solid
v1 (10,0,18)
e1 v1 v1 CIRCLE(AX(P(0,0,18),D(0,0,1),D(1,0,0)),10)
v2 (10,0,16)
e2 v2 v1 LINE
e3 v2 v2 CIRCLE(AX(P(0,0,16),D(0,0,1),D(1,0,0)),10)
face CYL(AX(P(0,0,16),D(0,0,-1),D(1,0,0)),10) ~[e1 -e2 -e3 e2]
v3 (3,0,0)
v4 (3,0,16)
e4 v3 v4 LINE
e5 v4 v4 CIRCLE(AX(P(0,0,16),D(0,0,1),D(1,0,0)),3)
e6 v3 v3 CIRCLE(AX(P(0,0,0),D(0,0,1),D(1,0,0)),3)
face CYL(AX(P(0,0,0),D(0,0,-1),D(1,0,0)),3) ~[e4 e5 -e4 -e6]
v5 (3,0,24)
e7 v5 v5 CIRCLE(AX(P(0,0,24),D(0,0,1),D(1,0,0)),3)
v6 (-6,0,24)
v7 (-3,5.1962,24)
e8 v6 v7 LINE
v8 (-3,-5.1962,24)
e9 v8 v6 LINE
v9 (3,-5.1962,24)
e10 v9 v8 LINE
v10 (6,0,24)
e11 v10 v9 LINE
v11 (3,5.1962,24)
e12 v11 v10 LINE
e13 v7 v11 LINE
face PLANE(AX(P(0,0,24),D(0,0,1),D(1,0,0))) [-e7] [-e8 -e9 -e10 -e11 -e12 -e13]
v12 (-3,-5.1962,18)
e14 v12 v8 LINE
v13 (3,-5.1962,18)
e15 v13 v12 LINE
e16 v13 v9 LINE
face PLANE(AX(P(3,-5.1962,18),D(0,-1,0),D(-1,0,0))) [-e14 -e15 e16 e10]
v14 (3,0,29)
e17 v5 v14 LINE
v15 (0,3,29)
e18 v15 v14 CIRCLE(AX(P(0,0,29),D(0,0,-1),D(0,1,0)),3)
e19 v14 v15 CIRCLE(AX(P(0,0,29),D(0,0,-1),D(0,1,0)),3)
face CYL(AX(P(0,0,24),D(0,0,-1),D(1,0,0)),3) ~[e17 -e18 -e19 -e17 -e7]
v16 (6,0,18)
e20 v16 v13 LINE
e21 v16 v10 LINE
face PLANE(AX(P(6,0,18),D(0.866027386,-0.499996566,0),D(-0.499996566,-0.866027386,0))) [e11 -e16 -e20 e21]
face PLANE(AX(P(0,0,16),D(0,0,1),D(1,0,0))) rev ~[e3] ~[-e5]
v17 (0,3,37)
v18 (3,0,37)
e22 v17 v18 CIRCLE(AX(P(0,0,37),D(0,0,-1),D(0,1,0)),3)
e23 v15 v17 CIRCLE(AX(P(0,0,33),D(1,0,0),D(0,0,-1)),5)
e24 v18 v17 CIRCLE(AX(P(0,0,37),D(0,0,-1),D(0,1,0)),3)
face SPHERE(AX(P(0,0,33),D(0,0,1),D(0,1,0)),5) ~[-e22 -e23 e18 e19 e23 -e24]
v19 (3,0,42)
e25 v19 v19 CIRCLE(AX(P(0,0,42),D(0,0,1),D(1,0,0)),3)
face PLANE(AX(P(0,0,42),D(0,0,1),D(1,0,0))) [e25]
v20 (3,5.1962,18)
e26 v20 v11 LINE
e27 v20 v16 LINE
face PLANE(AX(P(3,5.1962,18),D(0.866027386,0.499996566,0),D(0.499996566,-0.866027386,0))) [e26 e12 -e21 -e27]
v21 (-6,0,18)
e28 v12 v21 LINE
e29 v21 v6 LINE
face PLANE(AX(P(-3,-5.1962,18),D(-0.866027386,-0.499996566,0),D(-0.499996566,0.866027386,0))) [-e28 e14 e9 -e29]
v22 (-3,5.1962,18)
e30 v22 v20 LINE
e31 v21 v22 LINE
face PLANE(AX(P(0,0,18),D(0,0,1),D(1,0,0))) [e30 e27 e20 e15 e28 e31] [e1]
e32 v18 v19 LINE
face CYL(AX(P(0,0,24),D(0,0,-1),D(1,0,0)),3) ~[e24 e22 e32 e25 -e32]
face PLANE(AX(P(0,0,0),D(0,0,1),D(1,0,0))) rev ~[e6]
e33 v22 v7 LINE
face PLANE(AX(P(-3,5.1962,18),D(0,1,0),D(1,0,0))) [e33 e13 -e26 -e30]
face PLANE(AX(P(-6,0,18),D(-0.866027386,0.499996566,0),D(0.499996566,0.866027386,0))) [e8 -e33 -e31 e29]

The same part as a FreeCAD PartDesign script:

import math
import FreeCAD as App
import Part
import Sketcher

V = App.Vector


def add_polygon(sketch, points):
    """Adds a closed chain of lines whose ends are joined by coincident constraints."""
    first, n = sketch.GeometryCount, len(points)
    for a, b in zip(points, points[1:] + points[:1]):
        sketch.addGeometry(Part.LineSegment(App.Vector(*a, 0), App.Vector(*b, 0)), False)
    for i in range(n):
        sketch.addConstraint(Sketcher.Constraint("Coincident", first + i, 2, first + (i + 1) % n, 1))

doc = App.newDocument("Part")
params = doc.addObject("Spreadsheet::Sheet", "Params")
for row, (alias, value) in enumerate([
    ("sketch1_diameter", "6 mm"),
    ("pad1_length", "16 mm"),
    ("sketch2_diameter", "20 mm"),
    ("pad2_length", "2 mm"),
    ("sketch3_width", "6 mm"),
    ("sketch3_length", "6 mm"),
    ("pad3_length", "6 mm"),
    ("sketch4_diameter", "6 mm"),
    ("pad4_length", "18 mm"),
    ("sketch5_radius", "5 mm"),
    ("revolution_angle", "360 deg"),
], start=1):
    params.set(f"A{row}", alias)
    params.set(f"B{row}", "=" + value)
    params.setAlias(f"B{row}", alias)

body = doc.addObject("PartDesign::Body", "Body")

# Sketch on XY plane
sketch1 = body.newObject("Sketcher::SketchObject", "Sketch")
sketch1.AttachmentSupport = (doc.getObject("XY_Plane"), [""])
sketch1.MapMode = "FlatFace"
sketch1.addGeometry(Part.Circle(V(0, 0, 0), V(0, 0, 1), 3), False)
sketch1.addConstraint(Sketcher.Constraint("Coincident", 0, 3, -1, 1))
sketch1.addConstraint(Sketcher.Constraint("Diameter", 0, 6.0))
sketch1.setExpression("Constraints[1]", "Params.sketch1_diameter")
pad1 = body.newObject("PartDesign::Pad", "Pad")
pad1.Profile = sketch1
pad1.setExpression("Length", "Params.pad1_length")

# Sketch on XY plane
sketch2 = body.newObject("Sketcher::SketchObject", "Sketch001")
sketch2.AttachmentSupport = (doc.getObject("XY_Plane"), [""])
sketch2.MapMode = "FlatFace"
sketch2.AttachmentOffset = App.Placement(V(0, 0, 16), App.Rotation())
sketch2.addGeometry(Part.Circle(V(0, 0, 0), V(0, 0, 1), 10), False)
sketch2.addConstraint(Sketcher.Constraint("Coincident", 0, 3, -1, 1))
sketch2.addConstraint(Sketcher.Constraint("Diameter", 0, 20.0))
sketch2.setExpression("Constraints[1]", "Params.sketch2_diameter")
pad2 = body.newObject("PartDesign::Pad", "Pad001")
pad2.Profile = sketch2
pad2.setExpression("Length", "Params.pad2_length")

# Sketch on XY plane
sketch3 = body.newObject("Sketcher::SketchObject", "Sketch002")
sketch3.AttachmentSupport = (doc.getObject("XY_Plane"), [""])
sketch3.MapMode = "FlatFace"
sketch3.AttachmentOffset = App.Placement(V(0, 0, 18), App.Rotation())
add_polygon(sketch3, [(3, -5), (6, 0), (3, 5), (-3, 5), (-6, 0), (-3, -5)])  # lines 0-5
sketch3.addConstraint(Sketcher.Constraint("Horizontal", 2))
sketch3.addConstraint(Sketcher.Constraint("Horizontal", 5))
sketch3.addConstraint(Sketcher.Constraint("Symmetric", 0, 2, 3, 2, -1, 1))
sketch3.addConstraint(Sketcher.Constraint("Symmetric", 1, 2, 4, 2, -1, 1))
sketch3.addConstraint(Sketcher.Constraint("PointOnObject", 0, 2, -1))
sketch3.addConstraint(Sketcher.Constraint("Parallel", 0, 3))
sketch3.addConstraint(Sketcher.Constraint("Vertical", 2, 2, 4, 2))
sketch3.addConstraint(Sketcher.Constraint("DistanceX", 2, 2, 2, 1, 6.0))
sketch3.addConstraint(Sketcher.Constraint("Distance", 0, 6.0))
sketch3.addConstraint(Sketcher.Constraint("DistanceX", -1, 1, 0, 2, 6.0))
sketch3.setExpression("Constraints[13]", "Params.sketch3_width")
sketch3.setExpression("Constraints[14]", "Params.sketch3_length")
pad3 = body.newObject("PartDesign::Pad", "Pad002")
pad3.Profile = sketch3
pad3.setExpression("Length", "Params.pad3_length")

# Sketch on XY plane
sketch4 = body.newObject("Sketcher::SketchObject", "Sketch003")
sketch4.AttachmentSupport = (doc.getObject("XY_Plane"), [""])
sketch4.MapMode = "FlatFace"
sketch4.AttachmentOffset = App.Placement(V(0, 0, 24), App.Rotation())
sketch4.addGeometry(Part.Circle(V(0, 0, 0), V(0, 0, 1), 3), False)
sketch4.addConstraint(Sketcher.Constraint("Coincident", 0, 3, -1, 1))
sketch4.addConstraint(Sketcher.Constraint("Diameter", 0, 6.0))
sketch4.setExpression("Constraints[1]", "Params.sketch4_diameter")
pad4 = body.newObject("PartDesign::Pad", "Pad003")
pad4.Profile = sketch4
pad4.setExpression("Length", "Params.pad4_length")

# Sketch on YZ plane
sketch5 = body.newObject("Sketcher::SketchObject", "Sketch004")
sketch5.AttachmentSupport = (doc.getObject("YZ_Plane"), [""])
sketch5.MapMode = "FlatFace"
sketch5.addGeometry(Part.ArcOfCircle(Part.Circle(V(0, 33, 0), V(0, 0, 1), 5), math.radians(-90), math.radians(90)), False)
sketch5.addGeometry(Part.LineSegment(V(0, 38, 0), V(0, 28, 0)), False)
sketch5.addConstraint(Sketcher.Constraint("Coincident", 0, 1, 1, 2))
sketch5.addConstraint(Sketcher.Constraint("Coincident", 1, 1, 0, 2))
sketch5.addConstraint(Sketcher.Constraint("Vertical", 1))
sketch5.addConstraint(Sketcher.Constraint("PointOnObject", 0, 3, -2))
sketch5.addConstraint(Sketcher.Constraint("PointOnObject", 0, 1, -2))
sketch5.addConstraint(Sketcher.Constraint("Radius", 0, 5.0))
sketch5.addConstraint(Sketcher.Constraint("DistanceY", -1, 1, 0, 3, 33.0))
sketch5.setExpression("Constraints[5]", "Params.sketch5_radius")
revolution = body.newObject("PartDesign::Revolution", "Revolution")
revolution.Profile = sketch5
revolution.ReferenceAxis = (sketch5, ["V_Axis"])
revolution.setExpression("Angle", "Params.revolution_angle")

doc.recompute()
